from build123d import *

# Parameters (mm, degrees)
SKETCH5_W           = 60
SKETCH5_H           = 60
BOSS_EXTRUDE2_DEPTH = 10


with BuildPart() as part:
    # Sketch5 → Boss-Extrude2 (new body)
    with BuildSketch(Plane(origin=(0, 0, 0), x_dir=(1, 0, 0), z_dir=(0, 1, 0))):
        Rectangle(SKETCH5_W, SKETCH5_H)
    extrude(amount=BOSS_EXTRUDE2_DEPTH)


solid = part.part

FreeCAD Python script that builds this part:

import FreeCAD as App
import Part
import Sketcher

V = App.Vector
Q = App.Units.Quantity


def add_polygon(sketch, points):
    """Adds a closed chain of lines whose ends are joined by coincident constraints."""
    first, n = sketch.GeometryCount, len(points)
    for a, b in zip(points, points[1:] + points[:1]):
        sketch.addGeometry(Part.LineSegment(App.Vector(*a, 0), App.Vector(*b, 0)), False)
    for i in range(n):
        sketch.addConstraint(Sketcher.Constraint("Coincident", first + i, 2, first + (i + 1) % n, 1))

doc = App.newDocument("Part")
body = doc.addObject("PartDesign::Body", "Body")

# Sketch on XZ plane
sketch1 = doc.addObject("Sketcher::SketchObject", "Sketch")
body.addObject(sketch1)
sketch1.AttachmentSupport = (doc.XZ_Plane, [""])
sketch1.MapMode = "FlatFace"
add_polygon(sketch1, [(-30, -30), (-30, 30), (30, 30), (30, -30)])  # lines 0-3
sketch1.addConstraint([
    Sketcher.Constraint("Vertical", 0),
    Sketcher.Constraint("Horizontal", 1),
    Sketcher.Constraint("Vertical", 2),
    Sketcher.Constraint("Horizontal", 3),
    Sketcher.Constraint("Symmetric", 0, 2, 2, 2, -1, 1),
    Sketcher.Constraint("Equal", 3, 0),
    Sketcher.Constraint("DistanceX", 1, 1, 1, 2, Q("60 mm")),
])
pad1 = doc.addObject("PartDesign::Pad", "Pad")
body.addObject(pad1)
pad1.Profile = sketch1
pad1.Length = 10
pad1.Reversed = True

doc.recompute()
